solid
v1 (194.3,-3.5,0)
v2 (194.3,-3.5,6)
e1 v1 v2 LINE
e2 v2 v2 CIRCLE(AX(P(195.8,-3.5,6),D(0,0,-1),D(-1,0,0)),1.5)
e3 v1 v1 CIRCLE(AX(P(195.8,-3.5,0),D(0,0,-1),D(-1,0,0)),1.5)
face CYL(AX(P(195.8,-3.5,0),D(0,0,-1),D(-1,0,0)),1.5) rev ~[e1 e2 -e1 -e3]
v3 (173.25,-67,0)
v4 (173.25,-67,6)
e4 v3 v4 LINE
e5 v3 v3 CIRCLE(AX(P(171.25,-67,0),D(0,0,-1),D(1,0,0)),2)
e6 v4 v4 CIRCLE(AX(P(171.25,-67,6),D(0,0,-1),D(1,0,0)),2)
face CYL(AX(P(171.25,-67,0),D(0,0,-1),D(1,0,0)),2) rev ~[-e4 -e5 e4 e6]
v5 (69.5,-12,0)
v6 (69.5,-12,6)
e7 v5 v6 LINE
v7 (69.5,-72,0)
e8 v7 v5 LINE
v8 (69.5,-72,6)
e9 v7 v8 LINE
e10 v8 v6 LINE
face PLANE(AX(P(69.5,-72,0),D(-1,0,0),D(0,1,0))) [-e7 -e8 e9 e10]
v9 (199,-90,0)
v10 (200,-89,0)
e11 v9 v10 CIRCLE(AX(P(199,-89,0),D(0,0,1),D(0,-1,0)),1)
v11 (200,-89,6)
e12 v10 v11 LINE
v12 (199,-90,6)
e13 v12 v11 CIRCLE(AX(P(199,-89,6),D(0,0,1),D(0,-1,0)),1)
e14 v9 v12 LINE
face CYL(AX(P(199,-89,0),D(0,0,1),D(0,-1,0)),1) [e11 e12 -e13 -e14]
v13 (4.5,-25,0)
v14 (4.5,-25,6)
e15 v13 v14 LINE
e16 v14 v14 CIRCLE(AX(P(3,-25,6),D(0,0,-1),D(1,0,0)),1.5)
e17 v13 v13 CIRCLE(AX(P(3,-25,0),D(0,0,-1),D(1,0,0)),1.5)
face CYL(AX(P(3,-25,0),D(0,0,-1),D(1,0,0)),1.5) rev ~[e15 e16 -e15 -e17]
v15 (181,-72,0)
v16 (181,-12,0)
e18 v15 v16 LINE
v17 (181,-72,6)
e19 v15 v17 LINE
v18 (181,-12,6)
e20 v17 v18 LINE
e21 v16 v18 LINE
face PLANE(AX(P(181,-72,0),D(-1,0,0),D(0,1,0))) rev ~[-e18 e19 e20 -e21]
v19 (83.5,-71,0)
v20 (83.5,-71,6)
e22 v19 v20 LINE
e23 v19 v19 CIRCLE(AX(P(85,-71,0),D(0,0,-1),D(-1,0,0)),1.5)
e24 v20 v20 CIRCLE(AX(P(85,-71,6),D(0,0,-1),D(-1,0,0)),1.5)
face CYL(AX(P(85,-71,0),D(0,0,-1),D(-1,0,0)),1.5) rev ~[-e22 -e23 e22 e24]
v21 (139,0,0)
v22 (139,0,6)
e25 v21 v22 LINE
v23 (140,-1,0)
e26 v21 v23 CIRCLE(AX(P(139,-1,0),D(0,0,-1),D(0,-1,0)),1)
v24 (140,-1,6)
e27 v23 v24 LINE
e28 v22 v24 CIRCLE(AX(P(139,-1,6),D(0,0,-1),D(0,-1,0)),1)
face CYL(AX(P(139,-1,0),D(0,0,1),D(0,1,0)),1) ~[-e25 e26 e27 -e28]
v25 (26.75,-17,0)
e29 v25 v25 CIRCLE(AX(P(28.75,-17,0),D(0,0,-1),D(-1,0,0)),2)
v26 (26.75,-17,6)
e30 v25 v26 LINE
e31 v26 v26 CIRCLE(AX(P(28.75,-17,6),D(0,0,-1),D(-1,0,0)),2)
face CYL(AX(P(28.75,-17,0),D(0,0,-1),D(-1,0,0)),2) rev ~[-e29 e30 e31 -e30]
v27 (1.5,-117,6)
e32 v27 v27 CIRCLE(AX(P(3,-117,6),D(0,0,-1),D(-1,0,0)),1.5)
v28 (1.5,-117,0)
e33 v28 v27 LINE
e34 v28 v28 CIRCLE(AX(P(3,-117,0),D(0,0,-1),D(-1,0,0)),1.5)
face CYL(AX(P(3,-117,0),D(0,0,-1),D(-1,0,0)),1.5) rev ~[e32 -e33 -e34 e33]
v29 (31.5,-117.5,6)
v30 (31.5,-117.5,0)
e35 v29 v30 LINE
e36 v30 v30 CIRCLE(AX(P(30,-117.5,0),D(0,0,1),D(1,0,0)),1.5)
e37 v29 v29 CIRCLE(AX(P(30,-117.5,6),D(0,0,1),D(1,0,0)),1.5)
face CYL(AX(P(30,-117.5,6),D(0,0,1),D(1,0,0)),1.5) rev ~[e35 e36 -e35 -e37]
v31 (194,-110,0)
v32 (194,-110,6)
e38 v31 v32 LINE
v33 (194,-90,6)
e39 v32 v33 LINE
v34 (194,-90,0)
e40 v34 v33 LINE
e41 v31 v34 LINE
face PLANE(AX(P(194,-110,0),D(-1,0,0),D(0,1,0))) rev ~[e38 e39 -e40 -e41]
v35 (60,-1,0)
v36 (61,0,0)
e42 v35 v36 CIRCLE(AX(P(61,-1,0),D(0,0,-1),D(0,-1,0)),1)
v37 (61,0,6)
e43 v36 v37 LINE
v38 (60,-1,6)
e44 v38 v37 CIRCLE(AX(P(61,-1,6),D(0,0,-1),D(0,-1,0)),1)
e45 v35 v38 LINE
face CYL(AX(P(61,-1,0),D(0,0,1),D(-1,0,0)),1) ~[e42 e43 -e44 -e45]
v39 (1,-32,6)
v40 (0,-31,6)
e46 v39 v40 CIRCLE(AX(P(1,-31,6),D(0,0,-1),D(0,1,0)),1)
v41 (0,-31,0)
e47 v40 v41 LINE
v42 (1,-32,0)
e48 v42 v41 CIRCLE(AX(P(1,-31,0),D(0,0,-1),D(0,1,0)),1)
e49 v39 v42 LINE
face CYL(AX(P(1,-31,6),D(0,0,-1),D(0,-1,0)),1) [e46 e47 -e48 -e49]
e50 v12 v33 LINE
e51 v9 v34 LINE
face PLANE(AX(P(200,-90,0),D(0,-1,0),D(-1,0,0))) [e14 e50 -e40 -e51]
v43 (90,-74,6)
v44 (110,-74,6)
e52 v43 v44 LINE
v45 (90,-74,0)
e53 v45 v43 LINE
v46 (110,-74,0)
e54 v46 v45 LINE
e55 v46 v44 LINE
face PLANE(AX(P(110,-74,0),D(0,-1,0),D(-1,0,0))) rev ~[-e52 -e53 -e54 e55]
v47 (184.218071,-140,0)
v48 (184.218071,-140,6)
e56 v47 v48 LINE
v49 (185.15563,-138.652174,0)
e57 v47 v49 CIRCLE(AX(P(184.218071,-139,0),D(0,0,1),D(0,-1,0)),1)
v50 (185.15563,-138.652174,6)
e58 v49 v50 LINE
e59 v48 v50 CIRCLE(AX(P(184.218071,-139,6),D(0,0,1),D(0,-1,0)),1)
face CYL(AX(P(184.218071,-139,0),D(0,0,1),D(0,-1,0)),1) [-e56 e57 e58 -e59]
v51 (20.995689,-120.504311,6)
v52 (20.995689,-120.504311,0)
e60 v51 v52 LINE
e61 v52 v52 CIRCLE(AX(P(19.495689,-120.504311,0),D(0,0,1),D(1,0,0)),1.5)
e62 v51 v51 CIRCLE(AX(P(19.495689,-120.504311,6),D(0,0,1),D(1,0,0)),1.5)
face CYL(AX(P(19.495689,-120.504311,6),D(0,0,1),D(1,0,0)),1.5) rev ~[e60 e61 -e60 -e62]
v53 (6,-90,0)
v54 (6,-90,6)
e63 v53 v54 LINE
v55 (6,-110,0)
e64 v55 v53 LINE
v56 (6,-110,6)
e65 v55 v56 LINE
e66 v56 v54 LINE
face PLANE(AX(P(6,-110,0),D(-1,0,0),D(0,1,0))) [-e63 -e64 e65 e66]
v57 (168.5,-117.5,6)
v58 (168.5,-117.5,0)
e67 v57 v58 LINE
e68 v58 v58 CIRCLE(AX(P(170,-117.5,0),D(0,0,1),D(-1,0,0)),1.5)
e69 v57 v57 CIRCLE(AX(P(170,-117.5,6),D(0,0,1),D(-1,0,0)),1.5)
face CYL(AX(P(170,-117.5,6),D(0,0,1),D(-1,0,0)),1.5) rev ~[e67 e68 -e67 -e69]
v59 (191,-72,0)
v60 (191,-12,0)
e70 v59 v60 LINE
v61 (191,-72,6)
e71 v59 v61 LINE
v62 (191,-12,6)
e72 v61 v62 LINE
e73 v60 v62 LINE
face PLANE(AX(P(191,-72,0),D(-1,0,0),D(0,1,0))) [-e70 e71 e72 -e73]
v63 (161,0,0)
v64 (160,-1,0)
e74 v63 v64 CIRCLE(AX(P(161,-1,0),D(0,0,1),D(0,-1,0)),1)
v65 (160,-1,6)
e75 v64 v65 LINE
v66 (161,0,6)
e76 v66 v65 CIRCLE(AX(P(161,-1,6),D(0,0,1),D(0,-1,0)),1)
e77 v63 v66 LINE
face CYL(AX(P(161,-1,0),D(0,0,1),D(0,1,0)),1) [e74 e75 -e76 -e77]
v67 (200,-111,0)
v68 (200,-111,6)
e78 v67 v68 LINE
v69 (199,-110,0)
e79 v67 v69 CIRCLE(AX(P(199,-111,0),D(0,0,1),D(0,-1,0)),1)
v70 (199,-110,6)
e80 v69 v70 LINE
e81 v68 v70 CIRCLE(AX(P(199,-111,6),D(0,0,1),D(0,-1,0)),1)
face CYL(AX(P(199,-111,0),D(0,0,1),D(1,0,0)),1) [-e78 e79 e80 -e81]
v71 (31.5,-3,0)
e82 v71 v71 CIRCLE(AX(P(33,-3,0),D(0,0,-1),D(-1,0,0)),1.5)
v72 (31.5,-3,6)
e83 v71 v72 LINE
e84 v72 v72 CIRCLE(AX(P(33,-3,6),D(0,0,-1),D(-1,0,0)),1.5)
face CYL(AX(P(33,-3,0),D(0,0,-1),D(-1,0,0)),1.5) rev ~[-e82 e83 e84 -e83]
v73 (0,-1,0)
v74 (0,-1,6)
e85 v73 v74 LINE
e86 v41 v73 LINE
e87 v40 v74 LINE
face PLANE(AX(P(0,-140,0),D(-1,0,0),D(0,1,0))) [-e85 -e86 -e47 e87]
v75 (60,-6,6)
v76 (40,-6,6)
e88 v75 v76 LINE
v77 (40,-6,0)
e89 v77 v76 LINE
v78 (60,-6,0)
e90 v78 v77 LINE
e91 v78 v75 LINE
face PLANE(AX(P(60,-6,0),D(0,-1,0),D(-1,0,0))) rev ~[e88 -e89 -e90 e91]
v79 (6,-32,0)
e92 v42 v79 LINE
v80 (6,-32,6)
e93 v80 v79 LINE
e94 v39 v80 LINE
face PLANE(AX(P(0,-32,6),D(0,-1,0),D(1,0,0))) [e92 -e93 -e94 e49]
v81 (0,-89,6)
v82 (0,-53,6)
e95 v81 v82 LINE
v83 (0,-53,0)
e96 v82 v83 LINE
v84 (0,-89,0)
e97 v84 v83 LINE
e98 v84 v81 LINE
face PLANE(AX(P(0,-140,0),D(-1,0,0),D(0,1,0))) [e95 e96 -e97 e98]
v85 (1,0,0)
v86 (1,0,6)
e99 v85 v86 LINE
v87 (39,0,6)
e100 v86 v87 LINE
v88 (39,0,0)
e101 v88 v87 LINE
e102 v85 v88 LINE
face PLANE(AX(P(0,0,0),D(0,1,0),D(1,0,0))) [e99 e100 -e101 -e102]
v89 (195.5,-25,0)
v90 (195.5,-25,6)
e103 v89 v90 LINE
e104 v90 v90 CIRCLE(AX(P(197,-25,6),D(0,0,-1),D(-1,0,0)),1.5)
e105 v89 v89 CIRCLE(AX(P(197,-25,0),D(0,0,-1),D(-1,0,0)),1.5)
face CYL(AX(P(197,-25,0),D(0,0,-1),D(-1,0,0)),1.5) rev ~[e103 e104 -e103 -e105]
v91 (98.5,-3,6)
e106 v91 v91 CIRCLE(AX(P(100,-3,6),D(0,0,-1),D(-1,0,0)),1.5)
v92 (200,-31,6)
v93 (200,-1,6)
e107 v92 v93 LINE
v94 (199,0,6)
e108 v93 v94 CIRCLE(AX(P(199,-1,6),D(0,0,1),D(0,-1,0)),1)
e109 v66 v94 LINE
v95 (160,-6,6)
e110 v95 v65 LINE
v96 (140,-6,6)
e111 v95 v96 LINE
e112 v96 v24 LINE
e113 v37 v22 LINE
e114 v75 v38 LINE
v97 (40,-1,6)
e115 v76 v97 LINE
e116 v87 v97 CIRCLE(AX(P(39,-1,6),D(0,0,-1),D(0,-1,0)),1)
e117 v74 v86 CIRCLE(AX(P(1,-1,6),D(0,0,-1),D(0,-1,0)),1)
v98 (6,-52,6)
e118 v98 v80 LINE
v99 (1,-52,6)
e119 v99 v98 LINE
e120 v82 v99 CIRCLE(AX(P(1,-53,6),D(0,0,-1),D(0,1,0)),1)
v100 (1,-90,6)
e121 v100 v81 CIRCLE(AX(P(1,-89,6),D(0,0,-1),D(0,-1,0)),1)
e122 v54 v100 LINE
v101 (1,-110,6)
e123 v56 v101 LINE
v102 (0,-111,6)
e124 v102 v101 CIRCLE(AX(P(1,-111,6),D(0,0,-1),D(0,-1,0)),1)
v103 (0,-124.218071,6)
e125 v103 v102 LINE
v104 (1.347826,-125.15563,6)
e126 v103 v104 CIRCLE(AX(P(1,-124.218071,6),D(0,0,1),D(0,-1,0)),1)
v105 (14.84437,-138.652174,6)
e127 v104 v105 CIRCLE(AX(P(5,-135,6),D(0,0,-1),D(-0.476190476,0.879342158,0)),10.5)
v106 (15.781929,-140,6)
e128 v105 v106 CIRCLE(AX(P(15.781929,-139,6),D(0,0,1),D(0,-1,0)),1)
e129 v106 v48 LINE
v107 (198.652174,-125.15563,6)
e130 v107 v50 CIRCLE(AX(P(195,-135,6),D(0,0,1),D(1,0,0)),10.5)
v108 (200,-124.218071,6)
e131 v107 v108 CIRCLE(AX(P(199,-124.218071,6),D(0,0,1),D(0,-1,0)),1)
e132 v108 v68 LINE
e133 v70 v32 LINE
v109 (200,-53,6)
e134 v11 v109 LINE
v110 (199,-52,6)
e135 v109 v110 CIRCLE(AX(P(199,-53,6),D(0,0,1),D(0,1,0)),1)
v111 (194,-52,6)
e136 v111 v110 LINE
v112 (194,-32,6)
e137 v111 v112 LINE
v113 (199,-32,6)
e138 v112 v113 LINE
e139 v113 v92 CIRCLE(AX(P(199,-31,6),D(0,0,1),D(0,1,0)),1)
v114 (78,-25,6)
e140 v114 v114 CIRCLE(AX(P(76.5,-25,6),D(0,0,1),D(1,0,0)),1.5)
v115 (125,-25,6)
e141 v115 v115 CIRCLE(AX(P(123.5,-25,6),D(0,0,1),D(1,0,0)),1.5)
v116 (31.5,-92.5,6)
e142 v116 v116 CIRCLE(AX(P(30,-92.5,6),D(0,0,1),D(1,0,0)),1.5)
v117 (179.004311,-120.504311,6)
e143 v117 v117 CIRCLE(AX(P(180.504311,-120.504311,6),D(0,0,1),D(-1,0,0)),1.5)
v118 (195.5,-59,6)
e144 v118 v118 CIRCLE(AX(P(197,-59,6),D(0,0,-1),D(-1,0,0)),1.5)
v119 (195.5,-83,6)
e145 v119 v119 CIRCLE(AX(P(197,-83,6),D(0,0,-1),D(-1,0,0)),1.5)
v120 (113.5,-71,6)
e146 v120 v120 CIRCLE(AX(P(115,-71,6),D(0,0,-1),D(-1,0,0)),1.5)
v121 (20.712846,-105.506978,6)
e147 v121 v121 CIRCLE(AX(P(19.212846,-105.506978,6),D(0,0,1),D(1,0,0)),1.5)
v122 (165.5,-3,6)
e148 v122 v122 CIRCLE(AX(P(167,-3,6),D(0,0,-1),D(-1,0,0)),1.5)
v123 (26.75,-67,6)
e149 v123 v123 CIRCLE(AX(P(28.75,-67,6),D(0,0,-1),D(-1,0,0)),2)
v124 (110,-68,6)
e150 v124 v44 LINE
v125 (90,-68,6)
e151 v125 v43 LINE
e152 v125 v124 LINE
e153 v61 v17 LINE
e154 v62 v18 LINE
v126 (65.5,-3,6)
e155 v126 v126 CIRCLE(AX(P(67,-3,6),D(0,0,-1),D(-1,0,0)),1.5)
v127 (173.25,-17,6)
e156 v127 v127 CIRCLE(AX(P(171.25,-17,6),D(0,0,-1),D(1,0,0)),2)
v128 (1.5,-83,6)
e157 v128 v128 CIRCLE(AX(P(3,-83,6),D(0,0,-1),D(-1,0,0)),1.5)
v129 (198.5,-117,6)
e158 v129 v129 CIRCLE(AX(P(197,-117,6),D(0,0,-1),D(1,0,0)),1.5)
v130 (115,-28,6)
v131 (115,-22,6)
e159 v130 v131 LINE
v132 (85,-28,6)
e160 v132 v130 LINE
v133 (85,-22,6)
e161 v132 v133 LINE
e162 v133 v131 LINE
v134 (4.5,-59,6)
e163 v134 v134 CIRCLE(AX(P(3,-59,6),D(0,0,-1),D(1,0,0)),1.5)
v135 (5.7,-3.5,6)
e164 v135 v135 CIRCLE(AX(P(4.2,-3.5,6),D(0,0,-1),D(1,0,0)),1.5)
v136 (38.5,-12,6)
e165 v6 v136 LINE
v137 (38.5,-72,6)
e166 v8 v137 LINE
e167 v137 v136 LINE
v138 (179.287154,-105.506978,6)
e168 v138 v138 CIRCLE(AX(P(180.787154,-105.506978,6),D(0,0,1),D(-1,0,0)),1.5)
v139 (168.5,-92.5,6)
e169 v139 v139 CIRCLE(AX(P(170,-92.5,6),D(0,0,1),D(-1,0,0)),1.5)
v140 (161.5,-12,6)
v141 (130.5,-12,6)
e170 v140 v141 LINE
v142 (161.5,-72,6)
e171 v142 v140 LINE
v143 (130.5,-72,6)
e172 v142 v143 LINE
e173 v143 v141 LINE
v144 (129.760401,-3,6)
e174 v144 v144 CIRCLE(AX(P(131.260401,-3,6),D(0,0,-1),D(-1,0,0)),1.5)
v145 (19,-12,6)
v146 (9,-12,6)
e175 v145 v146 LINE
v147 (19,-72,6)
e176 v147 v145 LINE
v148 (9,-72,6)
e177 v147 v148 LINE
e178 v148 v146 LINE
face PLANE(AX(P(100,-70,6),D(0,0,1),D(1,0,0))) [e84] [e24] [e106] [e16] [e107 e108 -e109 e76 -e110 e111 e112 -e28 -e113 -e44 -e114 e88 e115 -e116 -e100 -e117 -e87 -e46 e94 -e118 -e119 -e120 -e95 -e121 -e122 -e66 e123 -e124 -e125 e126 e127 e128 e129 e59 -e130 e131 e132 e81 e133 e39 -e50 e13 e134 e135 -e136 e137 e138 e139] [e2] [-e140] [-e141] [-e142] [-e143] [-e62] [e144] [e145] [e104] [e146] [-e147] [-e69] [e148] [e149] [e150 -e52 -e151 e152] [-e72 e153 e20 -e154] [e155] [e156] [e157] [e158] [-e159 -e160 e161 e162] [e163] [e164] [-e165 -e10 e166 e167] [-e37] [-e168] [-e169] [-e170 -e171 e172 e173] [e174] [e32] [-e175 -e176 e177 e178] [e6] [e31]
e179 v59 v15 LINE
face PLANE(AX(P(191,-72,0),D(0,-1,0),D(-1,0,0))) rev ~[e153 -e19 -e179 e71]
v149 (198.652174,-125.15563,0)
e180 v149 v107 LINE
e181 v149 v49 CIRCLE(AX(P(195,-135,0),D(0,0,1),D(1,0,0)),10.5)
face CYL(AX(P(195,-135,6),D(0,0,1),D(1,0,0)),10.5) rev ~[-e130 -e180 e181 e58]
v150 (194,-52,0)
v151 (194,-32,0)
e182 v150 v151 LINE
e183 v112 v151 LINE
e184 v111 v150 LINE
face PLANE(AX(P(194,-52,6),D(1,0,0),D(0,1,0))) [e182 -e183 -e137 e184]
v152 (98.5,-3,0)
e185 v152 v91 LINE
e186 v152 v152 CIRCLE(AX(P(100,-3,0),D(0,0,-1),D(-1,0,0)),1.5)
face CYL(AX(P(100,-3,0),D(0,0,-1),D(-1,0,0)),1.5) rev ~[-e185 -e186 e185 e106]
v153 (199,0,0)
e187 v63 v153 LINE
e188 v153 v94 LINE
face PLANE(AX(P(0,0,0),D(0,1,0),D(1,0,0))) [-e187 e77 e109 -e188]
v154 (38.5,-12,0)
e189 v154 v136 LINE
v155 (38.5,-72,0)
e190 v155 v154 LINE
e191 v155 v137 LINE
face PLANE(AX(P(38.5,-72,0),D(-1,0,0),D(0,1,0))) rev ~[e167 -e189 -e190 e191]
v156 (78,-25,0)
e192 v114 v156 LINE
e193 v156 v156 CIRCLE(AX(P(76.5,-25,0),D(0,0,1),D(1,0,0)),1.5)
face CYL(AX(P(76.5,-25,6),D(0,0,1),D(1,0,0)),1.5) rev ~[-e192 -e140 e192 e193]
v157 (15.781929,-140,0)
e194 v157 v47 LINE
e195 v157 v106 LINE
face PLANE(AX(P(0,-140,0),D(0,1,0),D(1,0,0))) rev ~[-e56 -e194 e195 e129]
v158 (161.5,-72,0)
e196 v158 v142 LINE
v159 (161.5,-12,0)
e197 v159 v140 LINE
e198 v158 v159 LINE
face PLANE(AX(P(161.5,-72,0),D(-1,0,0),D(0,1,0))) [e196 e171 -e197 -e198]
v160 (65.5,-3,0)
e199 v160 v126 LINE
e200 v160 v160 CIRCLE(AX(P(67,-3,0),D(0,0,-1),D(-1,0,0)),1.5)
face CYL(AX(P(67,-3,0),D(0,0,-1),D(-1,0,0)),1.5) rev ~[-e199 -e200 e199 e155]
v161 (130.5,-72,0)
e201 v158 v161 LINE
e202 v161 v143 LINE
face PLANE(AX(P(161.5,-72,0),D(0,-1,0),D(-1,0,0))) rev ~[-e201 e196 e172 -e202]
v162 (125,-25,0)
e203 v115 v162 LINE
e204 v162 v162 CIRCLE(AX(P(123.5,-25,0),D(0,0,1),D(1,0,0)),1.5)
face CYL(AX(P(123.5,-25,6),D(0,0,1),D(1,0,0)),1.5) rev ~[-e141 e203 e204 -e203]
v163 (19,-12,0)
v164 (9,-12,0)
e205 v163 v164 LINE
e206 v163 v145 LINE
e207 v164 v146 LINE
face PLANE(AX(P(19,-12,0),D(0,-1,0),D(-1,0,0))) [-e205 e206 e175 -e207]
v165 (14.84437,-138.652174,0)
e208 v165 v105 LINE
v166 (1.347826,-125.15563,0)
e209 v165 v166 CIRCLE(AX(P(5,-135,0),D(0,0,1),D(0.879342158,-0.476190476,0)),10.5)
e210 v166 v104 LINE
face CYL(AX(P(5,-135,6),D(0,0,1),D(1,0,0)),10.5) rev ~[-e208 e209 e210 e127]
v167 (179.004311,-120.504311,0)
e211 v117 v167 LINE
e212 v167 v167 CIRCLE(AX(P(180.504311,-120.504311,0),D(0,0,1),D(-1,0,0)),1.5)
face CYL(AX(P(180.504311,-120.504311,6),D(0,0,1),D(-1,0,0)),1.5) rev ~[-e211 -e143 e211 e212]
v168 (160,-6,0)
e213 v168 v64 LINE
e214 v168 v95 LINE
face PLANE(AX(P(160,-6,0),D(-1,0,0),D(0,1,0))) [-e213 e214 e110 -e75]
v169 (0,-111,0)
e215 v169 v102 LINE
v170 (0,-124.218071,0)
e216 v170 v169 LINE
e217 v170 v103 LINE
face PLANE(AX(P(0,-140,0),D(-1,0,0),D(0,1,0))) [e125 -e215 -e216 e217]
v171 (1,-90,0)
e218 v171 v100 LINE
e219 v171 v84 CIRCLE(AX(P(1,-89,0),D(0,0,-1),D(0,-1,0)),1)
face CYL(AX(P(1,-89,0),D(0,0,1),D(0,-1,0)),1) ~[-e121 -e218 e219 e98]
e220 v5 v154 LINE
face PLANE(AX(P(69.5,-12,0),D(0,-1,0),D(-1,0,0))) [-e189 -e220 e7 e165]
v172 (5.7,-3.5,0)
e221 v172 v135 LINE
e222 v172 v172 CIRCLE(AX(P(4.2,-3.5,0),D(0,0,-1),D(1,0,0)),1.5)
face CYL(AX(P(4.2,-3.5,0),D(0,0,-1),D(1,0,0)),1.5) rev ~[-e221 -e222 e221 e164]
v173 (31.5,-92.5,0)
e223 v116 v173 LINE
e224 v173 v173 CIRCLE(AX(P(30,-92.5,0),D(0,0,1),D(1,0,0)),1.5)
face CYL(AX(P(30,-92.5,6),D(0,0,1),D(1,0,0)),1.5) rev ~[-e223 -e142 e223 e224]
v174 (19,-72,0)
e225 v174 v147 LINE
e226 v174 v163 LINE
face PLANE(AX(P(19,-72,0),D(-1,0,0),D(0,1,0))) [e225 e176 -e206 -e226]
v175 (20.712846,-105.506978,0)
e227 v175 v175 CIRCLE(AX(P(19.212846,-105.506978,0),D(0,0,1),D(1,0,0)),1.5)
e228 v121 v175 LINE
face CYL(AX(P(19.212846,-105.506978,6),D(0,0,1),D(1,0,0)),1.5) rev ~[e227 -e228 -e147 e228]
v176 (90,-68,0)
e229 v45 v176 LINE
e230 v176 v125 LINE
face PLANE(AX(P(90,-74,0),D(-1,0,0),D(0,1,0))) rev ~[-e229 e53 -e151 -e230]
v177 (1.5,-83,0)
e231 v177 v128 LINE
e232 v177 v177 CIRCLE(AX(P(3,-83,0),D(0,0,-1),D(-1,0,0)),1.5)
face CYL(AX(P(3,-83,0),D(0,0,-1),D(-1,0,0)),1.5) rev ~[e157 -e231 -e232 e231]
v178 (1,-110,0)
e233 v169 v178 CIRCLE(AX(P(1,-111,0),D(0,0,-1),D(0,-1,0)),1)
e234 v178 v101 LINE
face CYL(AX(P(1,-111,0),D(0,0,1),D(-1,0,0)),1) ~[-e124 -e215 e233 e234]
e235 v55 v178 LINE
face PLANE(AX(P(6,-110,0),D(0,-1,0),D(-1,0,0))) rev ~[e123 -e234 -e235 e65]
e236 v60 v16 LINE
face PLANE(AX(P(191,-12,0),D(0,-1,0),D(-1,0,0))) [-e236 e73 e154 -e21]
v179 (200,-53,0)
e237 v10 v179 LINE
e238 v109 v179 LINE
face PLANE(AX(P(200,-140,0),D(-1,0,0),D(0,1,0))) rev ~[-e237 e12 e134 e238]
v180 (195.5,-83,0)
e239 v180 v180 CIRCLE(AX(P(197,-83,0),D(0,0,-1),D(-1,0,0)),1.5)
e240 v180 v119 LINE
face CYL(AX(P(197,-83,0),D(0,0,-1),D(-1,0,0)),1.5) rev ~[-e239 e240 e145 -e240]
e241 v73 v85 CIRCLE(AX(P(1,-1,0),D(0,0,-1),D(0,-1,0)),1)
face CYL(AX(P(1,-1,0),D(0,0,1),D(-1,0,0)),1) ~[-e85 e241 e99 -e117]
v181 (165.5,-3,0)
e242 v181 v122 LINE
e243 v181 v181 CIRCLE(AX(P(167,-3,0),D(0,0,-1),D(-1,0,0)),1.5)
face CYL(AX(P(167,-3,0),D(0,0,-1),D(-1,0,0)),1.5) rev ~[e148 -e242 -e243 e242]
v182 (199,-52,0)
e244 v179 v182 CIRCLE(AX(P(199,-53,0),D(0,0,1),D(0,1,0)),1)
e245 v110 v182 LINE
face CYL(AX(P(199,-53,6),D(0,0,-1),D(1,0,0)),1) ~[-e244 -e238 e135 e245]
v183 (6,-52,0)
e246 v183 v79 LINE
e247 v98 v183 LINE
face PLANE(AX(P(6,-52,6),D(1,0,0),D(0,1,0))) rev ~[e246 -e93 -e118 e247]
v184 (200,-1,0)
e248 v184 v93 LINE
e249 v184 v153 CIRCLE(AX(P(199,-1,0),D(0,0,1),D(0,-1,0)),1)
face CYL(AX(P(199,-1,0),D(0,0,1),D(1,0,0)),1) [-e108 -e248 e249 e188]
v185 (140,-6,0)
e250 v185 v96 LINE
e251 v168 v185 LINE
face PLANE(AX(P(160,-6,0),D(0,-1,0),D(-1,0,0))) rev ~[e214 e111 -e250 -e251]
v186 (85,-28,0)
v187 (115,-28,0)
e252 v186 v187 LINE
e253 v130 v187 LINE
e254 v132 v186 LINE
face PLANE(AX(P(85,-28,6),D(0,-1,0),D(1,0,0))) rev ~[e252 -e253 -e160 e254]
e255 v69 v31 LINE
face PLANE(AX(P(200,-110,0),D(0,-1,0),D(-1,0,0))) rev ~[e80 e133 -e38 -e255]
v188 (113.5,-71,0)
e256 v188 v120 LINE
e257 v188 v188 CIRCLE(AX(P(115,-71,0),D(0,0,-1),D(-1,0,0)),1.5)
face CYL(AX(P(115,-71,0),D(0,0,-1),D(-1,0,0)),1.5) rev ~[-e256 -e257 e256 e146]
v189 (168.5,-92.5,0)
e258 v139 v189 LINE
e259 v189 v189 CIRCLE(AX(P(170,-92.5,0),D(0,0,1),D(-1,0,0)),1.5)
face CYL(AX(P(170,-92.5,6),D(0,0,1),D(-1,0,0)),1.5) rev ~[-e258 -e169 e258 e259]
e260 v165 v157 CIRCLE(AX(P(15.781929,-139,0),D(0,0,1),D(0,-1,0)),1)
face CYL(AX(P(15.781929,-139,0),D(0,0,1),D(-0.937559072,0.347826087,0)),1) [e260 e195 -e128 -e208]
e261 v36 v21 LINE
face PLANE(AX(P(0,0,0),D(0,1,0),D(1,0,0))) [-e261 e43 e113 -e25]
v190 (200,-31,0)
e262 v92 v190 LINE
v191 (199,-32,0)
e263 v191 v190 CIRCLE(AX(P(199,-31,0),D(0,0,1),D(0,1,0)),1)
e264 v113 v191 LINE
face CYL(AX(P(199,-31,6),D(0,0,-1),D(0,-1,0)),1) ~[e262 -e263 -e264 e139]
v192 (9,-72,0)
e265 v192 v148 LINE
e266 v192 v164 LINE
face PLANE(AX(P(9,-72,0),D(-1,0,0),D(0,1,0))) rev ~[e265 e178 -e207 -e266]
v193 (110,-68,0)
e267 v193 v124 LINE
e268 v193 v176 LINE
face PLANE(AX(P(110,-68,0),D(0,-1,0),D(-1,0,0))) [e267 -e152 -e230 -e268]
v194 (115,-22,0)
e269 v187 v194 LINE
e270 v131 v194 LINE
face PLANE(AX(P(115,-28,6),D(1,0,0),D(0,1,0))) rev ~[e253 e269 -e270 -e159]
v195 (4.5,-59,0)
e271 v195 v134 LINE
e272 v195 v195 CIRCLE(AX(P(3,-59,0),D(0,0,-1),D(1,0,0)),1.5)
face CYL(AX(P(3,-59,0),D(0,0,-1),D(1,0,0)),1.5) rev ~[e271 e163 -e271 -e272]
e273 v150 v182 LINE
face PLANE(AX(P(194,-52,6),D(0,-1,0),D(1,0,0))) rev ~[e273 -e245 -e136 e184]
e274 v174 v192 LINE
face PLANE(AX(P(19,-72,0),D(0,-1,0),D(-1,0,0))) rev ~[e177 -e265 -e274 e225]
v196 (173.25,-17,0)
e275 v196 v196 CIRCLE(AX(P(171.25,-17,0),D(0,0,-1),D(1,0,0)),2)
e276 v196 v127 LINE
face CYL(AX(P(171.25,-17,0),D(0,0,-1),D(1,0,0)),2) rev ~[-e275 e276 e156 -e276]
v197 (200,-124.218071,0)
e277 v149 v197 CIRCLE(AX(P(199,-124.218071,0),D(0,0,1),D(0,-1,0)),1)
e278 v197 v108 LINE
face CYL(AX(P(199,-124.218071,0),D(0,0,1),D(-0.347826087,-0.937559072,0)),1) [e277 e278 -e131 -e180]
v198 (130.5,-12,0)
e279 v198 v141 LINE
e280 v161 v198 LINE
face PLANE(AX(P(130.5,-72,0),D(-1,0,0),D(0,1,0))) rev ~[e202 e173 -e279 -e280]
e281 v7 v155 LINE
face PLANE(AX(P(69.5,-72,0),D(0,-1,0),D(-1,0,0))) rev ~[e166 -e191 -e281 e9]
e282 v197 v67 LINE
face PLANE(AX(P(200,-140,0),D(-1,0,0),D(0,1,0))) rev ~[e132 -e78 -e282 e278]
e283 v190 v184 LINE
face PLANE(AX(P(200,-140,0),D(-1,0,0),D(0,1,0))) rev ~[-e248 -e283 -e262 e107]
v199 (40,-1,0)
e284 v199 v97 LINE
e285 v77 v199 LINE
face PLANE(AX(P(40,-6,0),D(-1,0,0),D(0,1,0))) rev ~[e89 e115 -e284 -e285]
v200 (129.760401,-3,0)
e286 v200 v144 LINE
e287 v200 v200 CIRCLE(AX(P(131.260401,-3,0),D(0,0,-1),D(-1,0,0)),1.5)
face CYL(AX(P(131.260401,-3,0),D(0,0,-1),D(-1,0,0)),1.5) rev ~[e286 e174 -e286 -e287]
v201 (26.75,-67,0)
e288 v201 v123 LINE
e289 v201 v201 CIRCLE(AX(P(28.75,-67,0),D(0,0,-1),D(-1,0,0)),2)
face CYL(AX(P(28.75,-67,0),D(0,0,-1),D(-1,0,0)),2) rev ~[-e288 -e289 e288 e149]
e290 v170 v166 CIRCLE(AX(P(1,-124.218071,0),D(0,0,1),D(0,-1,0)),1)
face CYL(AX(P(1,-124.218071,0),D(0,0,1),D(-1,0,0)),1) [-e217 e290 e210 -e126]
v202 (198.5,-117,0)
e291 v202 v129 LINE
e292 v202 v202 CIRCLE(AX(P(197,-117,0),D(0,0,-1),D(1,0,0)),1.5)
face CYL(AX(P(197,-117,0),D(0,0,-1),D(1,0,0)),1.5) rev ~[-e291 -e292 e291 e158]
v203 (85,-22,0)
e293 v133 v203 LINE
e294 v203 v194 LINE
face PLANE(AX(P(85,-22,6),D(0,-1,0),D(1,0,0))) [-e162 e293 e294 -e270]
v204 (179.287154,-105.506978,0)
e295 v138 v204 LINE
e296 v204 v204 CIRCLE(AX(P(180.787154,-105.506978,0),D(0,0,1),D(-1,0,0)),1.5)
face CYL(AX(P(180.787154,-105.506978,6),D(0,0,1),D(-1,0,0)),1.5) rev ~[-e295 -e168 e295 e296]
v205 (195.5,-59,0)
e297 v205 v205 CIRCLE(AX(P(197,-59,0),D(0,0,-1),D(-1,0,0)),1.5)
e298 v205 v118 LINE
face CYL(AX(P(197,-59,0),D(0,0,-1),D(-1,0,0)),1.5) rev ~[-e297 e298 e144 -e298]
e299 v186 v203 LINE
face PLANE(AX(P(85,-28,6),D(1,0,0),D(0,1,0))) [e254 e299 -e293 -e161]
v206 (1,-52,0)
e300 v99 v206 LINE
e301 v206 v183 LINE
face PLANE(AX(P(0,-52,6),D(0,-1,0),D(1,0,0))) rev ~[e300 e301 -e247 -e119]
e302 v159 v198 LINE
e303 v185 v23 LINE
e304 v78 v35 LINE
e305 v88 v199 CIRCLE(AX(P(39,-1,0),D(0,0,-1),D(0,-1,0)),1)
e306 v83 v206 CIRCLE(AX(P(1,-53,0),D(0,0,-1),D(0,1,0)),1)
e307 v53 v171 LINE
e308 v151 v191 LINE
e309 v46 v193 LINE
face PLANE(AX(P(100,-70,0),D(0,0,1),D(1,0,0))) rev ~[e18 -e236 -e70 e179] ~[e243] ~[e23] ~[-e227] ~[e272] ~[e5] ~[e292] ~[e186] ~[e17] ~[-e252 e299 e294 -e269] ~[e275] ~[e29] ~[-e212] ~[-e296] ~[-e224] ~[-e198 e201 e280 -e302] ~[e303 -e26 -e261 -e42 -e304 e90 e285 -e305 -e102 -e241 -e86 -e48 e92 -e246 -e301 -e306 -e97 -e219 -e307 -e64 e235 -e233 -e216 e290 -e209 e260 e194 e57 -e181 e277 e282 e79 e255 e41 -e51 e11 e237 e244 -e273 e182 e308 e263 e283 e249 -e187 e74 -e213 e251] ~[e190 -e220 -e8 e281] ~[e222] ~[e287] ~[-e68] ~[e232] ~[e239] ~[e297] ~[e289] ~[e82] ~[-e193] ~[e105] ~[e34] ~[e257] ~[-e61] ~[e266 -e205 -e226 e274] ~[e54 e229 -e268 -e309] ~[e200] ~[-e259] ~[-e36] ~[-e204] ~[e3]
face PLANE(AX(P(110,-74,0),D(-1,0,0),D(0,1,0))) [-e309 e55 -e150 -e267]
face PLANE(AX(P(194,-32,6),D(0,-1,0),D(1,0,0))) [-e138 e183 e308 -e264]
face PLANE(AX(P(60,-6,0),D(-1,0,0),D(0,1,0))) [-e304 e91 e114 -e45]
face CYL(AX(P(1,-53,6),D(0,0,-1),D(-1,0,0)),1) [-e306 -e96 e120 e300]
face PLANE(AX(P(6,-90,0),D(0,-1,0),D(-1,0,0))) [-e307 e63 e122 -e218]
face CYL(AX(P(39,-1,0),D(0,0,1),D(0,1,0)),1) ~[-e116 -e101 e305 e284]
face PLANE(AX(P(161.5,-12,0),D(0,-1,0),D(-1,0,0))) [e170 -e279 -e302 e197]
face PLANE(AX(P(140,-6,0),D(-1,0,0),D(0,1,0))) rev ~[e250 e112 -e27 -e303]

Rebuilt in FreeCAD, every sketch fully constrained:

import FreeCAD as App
import Part
import Sketcher

V = App.Vector
Q = App.Units.Quantity


def edges_at(feature, points):
    """Names of the edges that pass closest to the given points."""
    edges = feature.Shape.Edges
    near = lambda p: min(range(len(edges)), key=lambda i: edges[i].distToShape(Part.Vertex(*p))[0])
    return sorted({f"Edge{near(p) + 1}" for p in points})

doc = App.newDocument("Part")
body = doc.addObject("PartDesign::Body", "Body")

# Sketch on XY plane
sketch1 = doc.addObject("Sketcher::SketchObject", "Sketch")
body.addObject(sketch1)
sketch1.AttachmentSupport = (doc.XY_Plane, [""])
sketch1.MapMode = "FlatFace"
sketch1.addGeometry([
    Part.LineSegment(V(0, 0, 0), V(0, -140, 0)),
    Part.LineSegment(V(0, -140, 0), V(200, -140, 0)),
    Part.LineSegment(V(200, -140, 0), V(200, 0, 0)),
    Part.LineSegment(V(200, 0, 0), V(0, 0, 0)),
], False)
sketch1.addConstraint([
    Sketcher.Constraint("Coincident", 0, 2, 1, 1),
    Sketcher.Constraint("Coincident", 1, 2, 2, 1),
    Sketcher.Constraint("Coincident", 2, 2, 3, 1),
    Sketcher.Constraint("Coincident", 3, 2, 0, 1),
    Sketcher.Constraint("Vertical", 0),
    Sketcher.Constraint("Horizontal", 1),
    Sketcher.Constraint("Vertical", 2),
    Sketcher.Constraint("Horizontal", 3),
    Sketcher.Constraint("Coincident", 3, 2, -1, 1),
    Sketcher.Constraint("DistanceX", 1, 1, 1, 2, Q("200 mm")),
    Sketcher.Constraint("DistanceY", 0, 2, 0, 1, Q("140 mm")),
])
pad1 = doc.addObject("PartDesign::Pad", "Pad")
body.addObject(pad1)
pad1.Profile = sketch1
pad1.Length = 6

# Sketch on XY plane
sketch2 = doc.addObject("Sketcher::SketchObject", "Sketch001")
body.addObject(sketch2)
sketch2.AttachmentSupport = (doc.XY_Plane, [""])
sketch2.MapMode = "FlatFace"
sketch2.addGeometry([
    Part.LineSegment(V(162, -12, 0), V(162, -72, 0)),  # 0
    Part.LineSegment(V(162, -72, 0), V(130, -72, 0)),  # 1
    Part.LineSegment(V(130, -72, 0), V(130, -12, 0)),  # 2
    Part.LineSegment(V(130, -12, 0), V(162, -12, 0)),  # 3
    Part.LineSegment(V(191, -12, 0), V(191, -72, 0)),  # 4
    Part.LineSegment(V(191, -72, 0), V(181, -72, 0)),  # 5
    Part.LineSegment(V(181, -72, 0), V(181, -12, 0)),  # 6
    Part.LineSegment(V(181, -12, 0), V(191, -12, 0)),  # 7
    Part.LineSegment(V(19, -12, 0), V(19, -72, 0)),  # 8
    Part.LineSegment(V(19, -72, 0), V(9, -72, 0)),  # 9
    Part.LineSegment(V(9, -72, 0), V(9, -12, 0)),  # 10
    Part.LineSegment(V(9, -12, 0), V(19, -12, 0)),  # 11
    Part.LineSegment(V(70, -12, 0), V(70, -72, 0)),  # 12
    Part.LineSegment(V(70, -72, 0), V(38, -72, 0)),  # 13
    Part.LineSegment(V(38, -72, 0), V(38, -12, 0)),  # 14
    Part.LineSegment(V(38, -12, 0), V(70, -12, 0)),  # 15
], False)
sketch2.addConstraint([
    Sketcher.Constraint("Coincident", 0, 2, 1, 1),
    Sketcher.Constraint("Coincident", 1, 2, 2, 1),
    Sketcher.Constraint("Coincident", 2, 2, 3, 1),
    Sketcher.Constraint("Coincident", 3, 2, 0, 1),
    Sketcher.Constraint("Coincident", 4, 2, 5, 1),
    Sketcher.Constraint("Coincident", 5, 2, 6, 1),
    Sketcher.Constraint("Coincident", 6, 2, 7, 1),
    Sketcher.Constraint("Coincident", 7, 2, 4, 1),
    Sketcher.Constraint("Coincident", 8, 2, 9, 1),
    Sketcher.Constraint("Coincident", 9, 2, 10, 1),
    Sketcher.Constraint("Coincident", 10, 2, 11, 1),
    Sketcher.Constraint("Coincident", 11, 2, 8, 1),
    Sketcher.Constraint("Coincident", 12, 2, 13, 1),
    Sketcher.Constraint("Coincident", 13, 2, 14, 1),
    Sketcher.Constraint("Coincident", 14, 2, 15, 1),
    Sketcher.Constraint("Coincident", 15, 2, 12, 1),
    Sketcher.Constraint("Vertical", 0),
    Sketcher.Constraint("Horizontal", 1),
    Sketcher.Constraint("Vertical", 2),
    Sketcher.Constraint("Horizontal", 3),
    Sketcher.Constraint("Vertical", 4),
    Sketcher.Constraint("Horizontal", 5),
    Sketcher.Constraint("Vertical", 6),
    Sketcher.Constraint("Horizontal", 7),
    Sketcher.Constraint("Vertical", 8),
    Sketcher.Constraint("Horizontal", 9),
    Sketcher.Constraint("Vertical", 10),
    Sketcher.Constraint("Horizontal", 11),
    Sketcher.Constraint("Vertical", 12),
    Sketcher.Constraint("Horizontal", 13),
    Sketcher.Constraint("Vertical", 14),
    Sketcher.Constraint("Horizontal", 15),
    Sketcher.Constraint("Horizontal", 1, 2, 4, 2),
    Sketcher.Constraint("Horizontal", 3, 2, 6, 2),
    Sketcher.Constraint("Horizontal", 5, 2, 8, 2),
    Sketcher.Constraint("Horizontal", 7, 2, 10, 2),
    Sketcher.Constraint("Horizontal", 9, 2, 12, 2),
    Sketcher.Constraint("Horizontal", 11, 2, 14, 2),
    Sketcher.Constraint("Equal", 7, 9),
    Sketcher.Constraint("Equal", 3, 13),
    Sketcher.Constraint("DistanceX", 1, 2, 1, 1, Q("31 mm")),
    Sketcher.Constraint("DistanceX", 5, 2, 5, 1, Q("10 mm")),
    Sketcher.Constraint("DistanceY", 0, 2, 0, 1, Q("60 mm")),
    Sketcher.Constraint("DistanceY", 0, 2, -1, 1, Q("72 mm")),
    Sketcher.Constraint("DistanceX", -1, 1, 4, 2, Q("191 mm")),
    Sketcher.Constraint("DistanceX", -1, 1, 8, 2, Q("19 mm")),
    Sketcher.Constraint("DistanceX", 12, 2, 1, 2, Q("61 mm")),
    Sketcher.Constraint("DistanceX", -1, 1, 0, 2, Q("161.5 mm")),
])
pocket1 = doc.addObject("PartDesign::Pocket", "Pocket")
body.addObject(pocket1)
pocket1.Profile = sketch2
pocket1.Length = 6
pocket1.Reversed = True

# Sketch on XY plane
sketch3 = doc.addObject("Sketcher::SketchObject", "Sketch002")
body.addObject(sketch3)
sketch3.AttachmentSupport = (doc.XY_Plane, [""])
sketch3.MapMode = "FlatFace"
sketch3.addGeometry([
    Part.LineSegment(V(160, 0, 0), V(160, -6, 0)),  # 0
    Part.LineSegment(V(160, -6, 0), V(140, -6, 0)),  # 1
    Part.LineSegment(V(140, -6, 0), V(140, 0, 0)),  # 2
    Part.LineSegment(V(140, 0, 0), V(160, 0, 0)),  # 3
    Part.LineSegment(V(60, 0, 0), V(60, -6, 0)),  # 4
    Part.LineSegment(V(60, -6, 0), V(40, -6, 0)),  # 5
    Part.LineSegment(V(40, -6, 0), V(40, 0, 0)),  # 6
    Part.LineSegment(V(40, 0, 0), V(60, 0, 0)),  # 7
], False)
sketch3.addConstraint([
    Sketcher.Constraint("Coincident", 0, 2, 1, 1),
    Sketcher.Constraint("Coincident", 1, 2, 2, 1),
    Sketcher.Constraint("Coincident", 2, 2, 3, 1),
    Sketcher.Constraint("Coincident", 3, 2, 0, 1),
    Sketcher.Constraint("Coincident", 4, 2, 5, 1),
    Sketcher.Constraint("Coincident", 5, 2, 6, 1),
    Sketcher.Constraint("Coincident", 6, 2, 7, 1),
    Sketcher.Constraint("Coincident", 7, 2, 4, 1),
    Sketcher.Constraint("Vertical", 0),
    Sketcher.Constraint("Horizontal", 1),
    Sketcher.Constraint("Vertical", 2),
    Sketcher.Constraint("Horizontal", 3),
    Sketcher.Constraint("Vertical", 4),
    Sketcher.Constraint("Horizontal", 5),
    Sketcher.Constraint("Vertical", 6),
    Sketcher.Constraint("Horizontal", 7),
    Sketcher.Constraint("PointOnObject", 2, 2, -1),
    Sketcher.Constraint("PointOnObject", 6, 2, -1),
    Sketcher.Constraint("Horizontal", 1, 2, 4, 2),
    Sketcher.Constraint("Equal", 3, 5),
    Sketcher.Constraint("DistanceX", 1, 2, 1, 1, Q("20 mm")),
    Sketcher.Constraint("DistanceY", 0, 2, 0, 1, Q("6 mm")),
    Sketcher.Constraint("DistanceX", -1, 1, 0, 2, Q("160 mm")),
    Sketcher.Constraint("DistanceX", -1, 1, 4, 2, Q("60 mm")),
])
pocket2 = doc.addObject("PartDesign::Pocket", "Pocket001")
body.addObject(pocket2)
pocket2.Profile = sketch3
pocket2.Length = 6
pocket2.Reversed = True

# Sketch on XY plane
sketch4 = doc.addObject("Sketcher::SketchObject", "Sketch003")
body.addObject(sketch4)
sketch4.AttachmentSupport = (doc.XY_Plane, [""])
sketch4.MapMode = "FlatFace"
sketch4.addGeometry([
    Part.LineSegment(V(200, -90, 0), V(200, -110, 0)),  # 0
    Part.LineSegment(V(200, -110, 0), V(194, -110, 0)),  # 1
    Part.LineSegment(V(194, -110, 0), V(194, -90, 0)),  # 2
    Part.LineSegment(V(194, -90, 0), V(200, -90, 0)),  # 3
    Part.LineSegment(V(6, -90, 0), V(6, -110, 0)),  # 4
    Part.LineSegment(V(6, -110, 0), V(0, -110, 0)),  # 5
    Part.LineSegment(V(0, -110, 0), V(0, -90, 0)),  # 6
    Part.LineSegment(V(0, -90, 0), V(6, -90, 0)),  # 7
], False)
sketch4.addConstraint([
    Sketcher.Constraint("Coincident", 0, 2, 1, 1),
    Sketcher.Constraint("Coincident", 1, 2, 2, 1),
    Sketcher.Constraint("Coincident", 2, 2, 3, 1),
    Sketcher.Constraint("Coincident", 3, 2, 0, 1),
    Sketcher.Constraint("Coincident", 4, 2, 5, 1),
    Sketcher.Constraint("Coincident", 5, 2, 6, 1),
    Sketcher.Constraint("Coincident", 6, 2, 7, 1),
    Sketcher.Constraint("Coincident", 7, 2, 4, 1),
    Sketcher.Constraint("Vertical", 0),
    Sketcher.Constraint("Horizontal", 1),
    Sketcher.Constraint("Vertical", 2),
    Sketcher.Constraint("Horizontal", 3),
    Sketcher.Constraint("Vertical", 4),
    Sketcher.Constraint("Horizontal", 5),
    Sketcher.Constraint("Vertical", 6),
    Sketcher.Constraint("Horizontal", 7),
    Sketcher.Constraint("PointOnObject", 5, 2, -2),
    Sketcher.Constraint("Horizontal", 1, 2, 4, 2),
    Sketcher.Constraint("Horizontal", 3, 2, 6, 2),
    Sketcher.Constraint("Equal", 3, 5),
    Sketcher.Constraint("DistanceX", 1, 2, 1, 1, Q("6 mm")),
    Sketcher.Constraint("DistanceY", 0, 2, 0, 1, Q("20 mm")),
    Sketcher.Constraint("DistanceX", -1, 1, 0, 2, Q("200 mm")),
    Sketcher.Constraint("DistanceY", 0, 2, -1, 1, Q("110 mm")),
])
pocket3 = doc.addObject("PartDesign::Pocket", "Pocket002")
body.addObject(pocket3)
pocket3.Profile = sketch4
pocket3.Length = 6
pocket3.Reversed = True

# Sketch on XY plane
sketch5 = doc.addObject("Sketcher::SketchObject", "Sketch004")
body.addObject(sketch5)
sketch5.AttachmentSupport = (doc.XY_Plane, [""])
sketch5.MapMode = "FlatFace"
sketch5.AttachmentOffset = App.Placement(V(0, 0, 6), App.Rotation())
sketch5.addGeometry([
    Part.LineSegment(V(85, -22, 0), V(85, -28, 0)),
    Part.LineSegment(V(85, -28, 0), V(115, -28, 0)),
    Part.LineSegment(V(115, -28, 0), V(115, -22, 0)),
    Part.LineSegment(V(115, -22, 0), V(85, -22, 0)),
], False)
sketch5.addConstraint([
    Sketcher.Constraint("Coincident", 0, 2, 1, 1),
    Sketcher.Constraint("Coincident", 1, 2, 2, 1),
    Sketcher.Constraint("Coincident", 2, 2, 3, 1),
    Sketcher.Constraint("Coincident", 3, 2, 0, 1),
    Sketcher.Constraint("Vertical", 0),
    Sketcher.Constraint("Horizontal", 1),
    Sketcher.Constraint("Vertical", 2),
    Sketcher.Constraint("Horizontal", 3),
    Sketcher.Constraint("DistanceX", 1, 1, 1, 2, Q("30 mm")),
    Sketcher.Constraint("DistanceY", 0, 2, 0, 1, Q("6 mm")),
    Sketcher.Constraint("DistanceX", -1, 1, 0, 2, Q("85 mm")),
    Sketcher.Constraint("DistanceY", 0, 2, -1, 1, Q("28 mm")),
])
pocket4 = doc.addObject("PartDesign::Pocket", "Pocket003")
body.addObject(pocket4)
pocket4.Profile = sketch5
pocket4.Length = 6

# Sketch on XY plane
sketch6 = doc.addObject("Sketcher::SketchObject", "Sketch005")
body.addObject(sketch6)
sketch6.AttachmentSupport = (doc.XY_Plane, [""])
sketch6.MapMode = "FlatFace"
sketch6.AttachmentOffset = App.Placement(V(0, 0, 6), App.Rotation())
sketch6.addGeometry([
    Part.Circle(V(195, -135, 0), V(0, 0, 1), 10),
    Part.Circle(V(5, -135, 0), V(0, 0, 1), 10),
], False)
sketch6.addConstraint([
    Sketcher.Constraint("Equal", 0, 1),
    Sketcher.Constraint("Horizontal", 0, 3, 1, 3),
    Sketcher.Constraint("Diameter", 0, Q("21 mm")),
    Sketcher.Constraint("DistanceX", -1, 1, 0, 3, Q("195 mm")),
    Sketcher.Constraint("DistanceY", 0, 3, -1, 1, Q("135 mm")),
    Sketcher.Constraint("DistanceX", -1, 1, 1, 3, Q("5 mm")),
])
pocket5 = doc.addObject("PartDesign::Pocket", "Pocket004")
body.addObject(pocket5)
pocket5.Profile = sketch6
pocket5.Length = 6

# Sketch on XY plane
sketch7 = doc.addObject("Sketcher::SketchObject", "Sketch006")
body.addObject(sketch7)
sketch7.AttachmentSupport = (doc.XY_Plane, [""])
sketch7.MapMode = "FlatFace"
sketch7.addGeometry([
    Part.Circle(V(28.8, -67, 0), V(0, 0, 1), 2),
    Part.Circle(V(28.8, -17, 0), V(0, 0, 1), 2),
    Part.Circle(V(171.2, -17, 0), V(0, 0, 1), 2),
    Part.Circle(V(171.2, -67, 0), V(0, 0, 1), 2),
], False)
sketch7.addConstraint([
    Sketcher.Constraint("Equal", 0, 1),
    Sketcher.Constraint("Equal", 1, 2),
    Sketcher.Constraint("Equal", 2, 3),
    Sketcher.Constraint("Horizontal", 1, 3, 2, 3),
    Sketcher.Constraint("Horizontal", 0, 3, 3, 3),
    Sketcher.Constraint("Vertical", 0, 3, 1, 3),
    Sketcher.Constraint("Vertical", 2, 3, 3, 3),
    Sketcher.Constraint("Diameter", 0, Q("4 mm")),
    Sketcher.Constraint("DistanceY", 0, 3, -1, 1, Q("67 mm")),
    Sketcher.Constraint("DistanceY", 1, 3, -1, 1, Q("17 mm")),
    Sketcher.Constraint("DistanceX", 1, 3, 2, 3, Q("142.5 mm")),
    Sketcher.Constraint("DistanceX", -1, 1, 0, 3, Q("28.75 mm")),
])
pocket6 = doc.addObject("PartDesign::Pocket", "Pocket005")
body.addObject(pocket6)
pocket6.Profile = sketch7
pocket6.Type = "ThroughAll"
pocket6.Reversed = True

# Sketch on XY plane
sketch8 = doc.addObject("Sketcher::SketchObject", "Sketch007")
body.addObject(sketch8)
sketch8.AttachmentSupport = (doc.XY_Plane, [""])
sketch8.MapMode = "FlatFace"
sketch8.AttachmentOffset = App.Placement(V(0, 0, 6), App.Rotation())
sketch8.addGeometry([
    Part.Circle(V(19.5, -120.5, 0), V(0, 0, 1), 1.5),  # 0
    Part.Circle(V(19.2, -105.5, 0), V(0, 0, 1), 1.5),  # 1
    Part.Circle(V(180.8, -105.5, 0), V(0, 0, 1), 1.5),  # 2
    Part.Circle(V(30, -117.5, 0), V(0, 0, 1), 1.5),  # 3
    Part.Circle(V(30, -92.5, 0), V(0, 0, 1), 1.5),  # 4
    Part.Circle(V(180.5, -120.5, 0), V(0, 0, 1), 1.5),  # 5
    Part.Circle(V(170, -92.5, 0), V(0, 0, 1), 1.5),  # 6
    Part.Circle(V(170, -117.5, 0), V(0, 0, 1), 1.5),  # 7
    Part.Circle(V(76.5, -25, 0), V(0, 0, 1), 1.5),  # 8
    Part.Circle(V(123.5, -25, 0), V(0, 0, 1), 1.5),  # 9
], False)
sketch8.addConstraint([
    Sketcher.Constraint("Equal", 0, 1),
    Sketcher.Constraint("Equal", 1, 2),
    Sketcher.Constraint("Equal", 2, 3),
    Sketcher.Constraint("Equal", 3, 4),
    Sketcher.Constraint("Equal", 4, 5),
    Sketcher.Constraint("Equal", 5, 6),
    Sketcher.Constraint("Equal", 6, 7),
    Sketcher.Constraint("Equal", 7, 8),
    Sketcher.Constraint("Equal", 8, 9),
    Sketcher.Constraint("Horizontal", 1, 3, 2, 3),
    Sketcher.Constraint("Horizontal", 0, 3, 5, 3),
    Sketcher.Constraint("Horizontal", 4, 3, 6, 3),
    Sketcher.Constraint("Horizontal", 3, 3, 7, 3),
    Sketcher.Constraint("Horizontal", 8, 3, 9, 3),
    Sketcher.Constraint("Vertical", 3, 3, 4, 3),
    Sketcher.Constraint("Vertical", 6, 3, 7, 3),
    Sketcher.Constraint("Diameter", 0, Q("3 mm")),
    Sketcher.Constraint("DistanceX", -1, 1, 3, 3, Q("30 mm")),
    Sketcher.Constraint("DistanceX", -1, 1, 6, 3, Q("170 mm")),
    Sketcher.Constraint("DistanceY", 8, 3, -1, 1, Q("25 mm")),
    Sketcher.Constraint("DistanceY", 3, 3, 4, 3, Q("25 mm")),
    Sketcher.Constraint("DistanceX", 8, 3, 9, 3, Q("47 mm")),
    Sketcher.Constraint("DistanceY", 3, 3, -1, 1, Q("117.5 mm")),
    Sketcher.Constraint("DistanceX", -1, 1, 8, 3, Q("76.5 mm")),
    Sketcher.Constraint("DistanceX", -1, 1, 0, 3, Q("19.495689 mm")),
    Sketcher.Constraint("DistanceY", 0, 3, -1, 1, Q("120.504311 mm")),
    Sketcher.Constraint("DistanceX", -1, 1, 5, 3, Q("180.504311 mm")),
    Sketcher.Constraint("DistanceX", -1, 1, 1, 3, Q("19.212846 mm")),
    Sketcher.Constraint("DistanceY", 1, 3, -1, 1, Q("105.506978 mm")),
    Sketcher.Constraint("DistanceX", -1, 1, 2, 3, Q("180.787154 mm")),
])
pocket7 = doc.addObject("PartDesign::Pocket", "Pocket006")
body.addObject(pocket7)
pocket7.Profile = sketch8
pocket7.Type = "ThroughAll"

# Sketch on XY plane
sketch9 = doc.addObject("Sketcher::SketchObject", "Sketch008")
body.addObject(sketch9)
sketch9.AttachmentSupport = (doc.XY_Plane, [""])
sketch9.MapMode = "FlatFace"
sketch9.addGeometry([
    Part.Circle(V(85, -71, 0), V(0, 0, 1), 1.5),  # 0
    Part.Circle(V(115, -71, 0), V(0, 0, 1), 1.5),  # 1
    Part.LineSegment(V(110, -68, 0), V(110, -74, 0)),  # 2
    Part.LineSegment(V(110, -74, 0), V(90, -74, 0)),  # 3
    Part.LineSegment(V(90, -74, 0), V(90, -68, 0)),  # 4
    Part.LineSegment(V(90, -68, 0), V(110, -68, 0)),  # 5
], False)
sketch9.addConstraint([
    Sketcher.Constraint("Coincident", 2, 2, 3, 1),
    Sketcher.Constraint("Coincident", 3, 2, 4, 1),
    Sketcher.Constraint("Coincident", 4, 2, 5, 1),
    Sketcher.Constraint("Coincident", 5, 2, 2, 1),
    Sketcher.Constraint("Vertical", 2),
    Sketcher.Constraint("Horizontal", 3),
    Sketcher.Constraint("Vertical", 4),
    Sketcher.Constraint("Horizontal", 5),
    Sketcher.Constraint("Equal", 0, 1),
    Sketcher.Constraint("Horizontal", 0, 3, 1, 3),
    Sketcher.Constraint("Diameter", 0, Q("3 mm")),
    Sketcher.Constraint("DistanceX", 3, 2, 3, 1, Q("20 mm")),
    Sketcher.Constraint("DistanceY", 2, 2, 2, 1, Q("6 mm")),
    Sketcher.Constraint("DistanceX", -1, 1, 0, 3, Q("85 mm")),
    Sketcher.Constraint("DistanceY", 0, 3, -1, 1, Q("71 mm")),
    Sketcher.Constraint("DistanceX", -1, 1, 1, 3, Q("115 mm")),
    Sketcher.Constraint("DistanceX", -1, 1, 2, 2, Q("110 mm")),
    Sketcher.Constraint("DistanceY", 2, 2, -1, 1, Q("74 mm")),
])
pocket8 = doc.addObject("PartDesign::Pocket", "Pocket007")
body.addObject(pocket8)
pocket8.Profile = sketch9
pocket8.Length = 10
pocket8.Reversed = True

# Sketch on XY plane
sketch10 = doc.addObject("Sketcher::SketchObject", "Sketch009")
body.addObject(sketch10)
sketch10.AttachmentSupport = (doc.XY_Plane, [""])
sketch10.MapMode = "FlatFace"
sketch10.addGeometry([
    Part.Circle(V(4.2, -3.5, 0), V(0, 0, 1), 1.5),
    Part.Circle(V(195.8, -3.5, 0), V(0, 0, 1), 1.5),
], False)
sketch10.addConstraint([
    Sketcher.Constraint("Equal", 0, 1),
    Sketcher.Constraint("Horizontal", 0, 3, 1, 3),
    Sketcher.Constraint("Diameter", 0, Q("3 mm")),
    Sketcher.Constraint("DistanceX", -1, 1, 0, 3, Q("4.2 mm")),
    Sketcher.Constraint("DistanceY", 0, 3, -1, 1, Q("3.5 mm")),
    Sketcher.Constraint("DistanceX", -1, 1, 1, 3, Q("195.8 mm")),
])
pocket9 = doc.addObject("PartDesign::Pocket", "Pocket008")
body.addObject(pocket9)
pocket9.Profile = sketch10
pocket9.Length = 6
pocket9.Reversed = True

# Sketch on XY plane
sketch11 = doc.addObject("Sketcher::SketchObject", "Sketch010")
body.addObject(sketch11)
sketch11.AttachmentSupport = (doc.XY_Plane, [""])
sketch11.MapMode = "FlatFace"
sketch11.addGeometry([
    Part.Circle(V(3, -83, 0), V(0, 0, 1), 1.5),
    Part.Circle(V(197, -117, 0), V(0, 0, 1), 1.5),
    Part.Circle(V(197, -83, 0), V(0, 0, 1), 1.5),
    Part.Circle(V(3, -117, 0), V(0, 0, 1), 1.5),
], False)
sketch11.addConstraint([
    Sketcher.Constraint("Equal", 0, 1),
    Sketcher.Constraint("Equal", 1, 2),
    Sketcher.Constraint("Equal", 2, 3),
    Sketcher.Constraint("Horizontal", 0, 3, 2, 3),
    Sketcher.Constraint("Horizontal", 1, 3, 3, 3),
    Sketcher.Constraint("Vertical", 1, 3, 2, 3),
    Sketcher.Constraint("Vertical", 0, 3, 3, 3),
    Sketcher.Constraint("Diameter", 0, Q("3 mm")),
    Sketcher.Constraint("DistanceX", -1, 1, 0, 3, Q("3 mm")),
    Sketcher.Constraint("DistanceY", 0, 3, -1, 1, Q("83 mm")),
    Sketcher.Constraint("DistanceX", -1, 1, 1, 3, Q("197 mm")),
    Sketcher.Constraint("DistanceY", 1, 3, -1, 1, Q("117 mm")),
])
pocket10 = doc.addObject("PartDesign::Pocket", "Pocket009")
body.addObject(pocket10)
pocket10.Profile = sketch11
pocket10.Length = 6
pocket10.Reversed = True

# Sketch on XY plane
sketch12 = doc.addObject("Sketcher::SketchObject", "Sketch011")
body.addObject(sketch12)
sketch12.AttachmentSupport = (doc.XY_Plane, [""])
sketch12.MapMode = "FlatFace"
sketch12.AttachmentOffset = App.Placement(V(0, 0, 6), App.Rotation())
sketch12.addGeometry([
    Part.LineSegment(V(0, -32, 0), V(0, -52, 0)),  # 0
    Part.LineSegment(V(0, -52, 0), V(6, -52, 0)),  # 1
    Part.LineSegment(V(6, -52, 0), V(6, -32, 0)),  # 2
    Part.LineSegment(V(6, -32, 0), V(0, -32, 0)),  # 3
    Part.LineSegment(V(194, -32, 0), V(194, -52, 0)),  # 4
    Part.LineSegment(V(194, -52, 0), V(200, -52, 0)),  # 5
    Part.LineSegment(V(200, -52, 0), V(200, -32, 0)),  # 6
    Part.LineSegment(V(200, -32, 0), V(194, -32, 0)),  # 7
], False)
sketch12.addConstraint([
    Sketcher.Constraint("Coincident", 0, 2, 1, 1),
    Sketcher.Constraint("Coincident", 1, 2, 2, 1),
    Sketcher.Constraint("Coincident", 2, 2, 3, 1),
    Sketcher.Constraint("Coincident", 3, 2, 0, 1),
    Sketcher.Constraint("Coincident", 4, 2, 5, 1),
    Sketcher.Constraint("Coincident", 5, 2, 6, 1),
    Sketcher.Constraint("Coincident", 6, 2, 7, 1),
    Sketcher.Constraint("Coincident", 7, 2, 4, 1),
    Sketcher.Constraint("Vertical", 0),
    Sketcher.Constraint("Horizontal", 1),
    Sketcher.Constraint("Vertical", 2),
    Sketcher.Constraint("Horizontal", 3),
    Sketcher.Constraint("Vertical", 4),
    Sketcher.Constraint("Horizontal", 5),
    Sketcher.Constraint("Vertical", 6),
    Sketcher.Constraint("Horizontal", 7),
    Sketcher.Constraint("PointOnObject", 0, 2, -2),
    Sketcher.Constraint("Horizontal", 1, 2, 4, 2),
    Sketcher.Constraint("Horizontal", 3, 2, 6, 2),
    Sketcher.Constraint("Equal", 3, 5),
    Sketcher.Constraint("DistanceX", 1, 1, 1, 2, Q("6 mm")),
    Sketcher.Constraint("DistanceY", 0, 2, 0, 1, Q("20 mm")),
    Sketcher.Constraint("DistanceY", 0, 2, -1, 1, Q("52 mm")),
    Sketcher.Constraint("DistanceX", -1, 1, 4, 2, Q("194 mm")),
])
pocket11 = doc.addObject("PartDesign::Pocket", "Pocket010")
body.addObject(pocket11)
pocket11.Profile = sketch12
pocket11.Type = "ThroughAll"

# Sketch on XY plane
sketch13 = doc.addObject("Sketcher::SketchObject", "Sketch012")
body.addObject(sketch13)
sketch13.AttachmentSupport = (doc.XY_Plane, [""])
sketch13.MapMode = "FlatFace"
sketch13.addGeometry([
    Part.Circle(V(197, -25, 0), V(0, 0, 1), 1.5),
    Part.Circle(V(197, -59, 0), V(0, 0, 1), 1.5),
    Part.Circle(V(3, -59, 0), V(0, 0, 1), 1.5),
    Part.Circle(V(3, -25, 0), V(0, 0, 1), 1.5),
], False)
sketch13.addConstraint([
    Sketcher.Constraint("Equal", 0, 1),
    Sketcher.Constraint("Equal", 1, 2),
    Sketcher.Constraint("Equal", 2, 3),
    Sketcher.Constraint("Horizontal", 1, 3, 2, 3),
    Sketcher.Constraint("Horizontal", 0, 3, 3, 3),
    Sketcher.Constraint("Vertical", 0, 3, 1, 3),
    Sketcher.Constraint("Vertical", 2, 3, 3, 3),
    Sketcher.Constraint("Diameter", 0, Q("3 mm")),
    Sketcher.Constraint("DistanceX", -1, 1, 0, 3, Q("197 mm")),
    Sketcher.Constraint("DistanceY", 0, 3, -1, 1, Q("25 mm")),
    Sketcher.Constraint("DistanceY", 1, 3, -1, 1, Q("59 mm")),
    Sketcher.Constraint("DistanceX", -1, 1, 2, 3, Q("3 mm")),
])
pocket12 = doc.addObject("PartDesign::Pocket", "Pocket011")
body.addObject(pocket12)
pocket12.Profile = sketch13
pocket12.Type = "ThroughAll"
pocket12.Reversed = True

# Sketch on XY plane
sketch14 = doc.addObject("Sketcher::SketchObject", "Sketch013")
body.addObject(sketch14)
sketch14.AttachmentSupport = (doc.XY_Plane, [""])
sketch14.MapMode = "FlatFace"
sketch14.addGeometry([
    Part.Circle(V(167, -3, 0), V(0, 0, 1), 1.5),  # 0
    Part.Circle(V(131.3, -3, 0), V(0, 0, 1), 1.5),  # 1
    Part.Circle(V(100, -3, 0), V(0, 0, 1), 1.5),  # 2
    Part.Circle(V(67, -3, 0), V(0, 0, 1), 1.5),  # 3
    Part.Circle(V(33, -3, 0), V(0, 0, 1), 1.5),  # 4
], False)
sketch14.addConstraint([
    Sketcher.Constraint("Equal", 0, 1),
    Sketcher.Constraint("Equal", 1, 2),
    Sketcher.Constraint("Equal", 2, 3),
    Sketcher.Constraint("Equal", 3, 4),
    Sketcher.Constraint("Horizontal", 0, 3, 1, 3),
    Sketcher.Constraint("Horizontal", 1, 3, 2, 3),
    Sketcher.Constraint("Horizontal", 2, 3, 3, 3),
    Sketcher.Constraint("Horizontal", 3, 3, 4, 3),
    Sketcher.Constraint("Diameter", 0, Q("3 mm")),
    Sketcher.Constraint("DistanceX", -1, 1, 0, 3, Q("167 mm")),
    Sketcher.Constraint("DistanceY", 0, 3, -1, 1, Q("3 mm")),
    Sketcher.Constraint("DistanceX", -1, 1, 2, 3, Q("100 mm")),
    Sketcher.Constraint("DistanceX", -1, 1, 3, 3, Q("67 mm")),
    Sketcher.Constraint("DistanceX", -1, 1, 4, 3, Q("33 mm")),
    Sketcher.Constraint("DistanceX", -1, 1, 1, 3, Q("131.260401 mm")),
])
pocket13 = doc.addObject("PartDesign::Pocket", "Pocket012")
body.addObject(pocket13)
pocket13.Profile = sketch14
pocket13.Length = 6
pocket13.Reversed = True
doc.recompute()

fillet = doc.addObject("PartDesign::Fillet", "Fillet")
body.addObject(fillet)
fillet.Base = (pocket13, edges_at(pocket13, [
    (200, -110, 3),
    (200, -90, 3),
    (0, -90, 3),
    (0, -110, 3),
    (185.767, -140, 3),
    (200, -125.767, 3),
    (14.233, -140, 3),
    (0, -125.767, 3),
    (0, -52, 3),
    (0, -32, 3),
    (200, -32, 3),
    (200, -52, 3),
    (0, 0, 3),
    (200, 0, 3),
    (160, 0, 3),
    (140, 0, 3),
    (60, 0, 3),
    (40, 0, 3),
]))
fillet.Radius = 1

doc.recompute()
